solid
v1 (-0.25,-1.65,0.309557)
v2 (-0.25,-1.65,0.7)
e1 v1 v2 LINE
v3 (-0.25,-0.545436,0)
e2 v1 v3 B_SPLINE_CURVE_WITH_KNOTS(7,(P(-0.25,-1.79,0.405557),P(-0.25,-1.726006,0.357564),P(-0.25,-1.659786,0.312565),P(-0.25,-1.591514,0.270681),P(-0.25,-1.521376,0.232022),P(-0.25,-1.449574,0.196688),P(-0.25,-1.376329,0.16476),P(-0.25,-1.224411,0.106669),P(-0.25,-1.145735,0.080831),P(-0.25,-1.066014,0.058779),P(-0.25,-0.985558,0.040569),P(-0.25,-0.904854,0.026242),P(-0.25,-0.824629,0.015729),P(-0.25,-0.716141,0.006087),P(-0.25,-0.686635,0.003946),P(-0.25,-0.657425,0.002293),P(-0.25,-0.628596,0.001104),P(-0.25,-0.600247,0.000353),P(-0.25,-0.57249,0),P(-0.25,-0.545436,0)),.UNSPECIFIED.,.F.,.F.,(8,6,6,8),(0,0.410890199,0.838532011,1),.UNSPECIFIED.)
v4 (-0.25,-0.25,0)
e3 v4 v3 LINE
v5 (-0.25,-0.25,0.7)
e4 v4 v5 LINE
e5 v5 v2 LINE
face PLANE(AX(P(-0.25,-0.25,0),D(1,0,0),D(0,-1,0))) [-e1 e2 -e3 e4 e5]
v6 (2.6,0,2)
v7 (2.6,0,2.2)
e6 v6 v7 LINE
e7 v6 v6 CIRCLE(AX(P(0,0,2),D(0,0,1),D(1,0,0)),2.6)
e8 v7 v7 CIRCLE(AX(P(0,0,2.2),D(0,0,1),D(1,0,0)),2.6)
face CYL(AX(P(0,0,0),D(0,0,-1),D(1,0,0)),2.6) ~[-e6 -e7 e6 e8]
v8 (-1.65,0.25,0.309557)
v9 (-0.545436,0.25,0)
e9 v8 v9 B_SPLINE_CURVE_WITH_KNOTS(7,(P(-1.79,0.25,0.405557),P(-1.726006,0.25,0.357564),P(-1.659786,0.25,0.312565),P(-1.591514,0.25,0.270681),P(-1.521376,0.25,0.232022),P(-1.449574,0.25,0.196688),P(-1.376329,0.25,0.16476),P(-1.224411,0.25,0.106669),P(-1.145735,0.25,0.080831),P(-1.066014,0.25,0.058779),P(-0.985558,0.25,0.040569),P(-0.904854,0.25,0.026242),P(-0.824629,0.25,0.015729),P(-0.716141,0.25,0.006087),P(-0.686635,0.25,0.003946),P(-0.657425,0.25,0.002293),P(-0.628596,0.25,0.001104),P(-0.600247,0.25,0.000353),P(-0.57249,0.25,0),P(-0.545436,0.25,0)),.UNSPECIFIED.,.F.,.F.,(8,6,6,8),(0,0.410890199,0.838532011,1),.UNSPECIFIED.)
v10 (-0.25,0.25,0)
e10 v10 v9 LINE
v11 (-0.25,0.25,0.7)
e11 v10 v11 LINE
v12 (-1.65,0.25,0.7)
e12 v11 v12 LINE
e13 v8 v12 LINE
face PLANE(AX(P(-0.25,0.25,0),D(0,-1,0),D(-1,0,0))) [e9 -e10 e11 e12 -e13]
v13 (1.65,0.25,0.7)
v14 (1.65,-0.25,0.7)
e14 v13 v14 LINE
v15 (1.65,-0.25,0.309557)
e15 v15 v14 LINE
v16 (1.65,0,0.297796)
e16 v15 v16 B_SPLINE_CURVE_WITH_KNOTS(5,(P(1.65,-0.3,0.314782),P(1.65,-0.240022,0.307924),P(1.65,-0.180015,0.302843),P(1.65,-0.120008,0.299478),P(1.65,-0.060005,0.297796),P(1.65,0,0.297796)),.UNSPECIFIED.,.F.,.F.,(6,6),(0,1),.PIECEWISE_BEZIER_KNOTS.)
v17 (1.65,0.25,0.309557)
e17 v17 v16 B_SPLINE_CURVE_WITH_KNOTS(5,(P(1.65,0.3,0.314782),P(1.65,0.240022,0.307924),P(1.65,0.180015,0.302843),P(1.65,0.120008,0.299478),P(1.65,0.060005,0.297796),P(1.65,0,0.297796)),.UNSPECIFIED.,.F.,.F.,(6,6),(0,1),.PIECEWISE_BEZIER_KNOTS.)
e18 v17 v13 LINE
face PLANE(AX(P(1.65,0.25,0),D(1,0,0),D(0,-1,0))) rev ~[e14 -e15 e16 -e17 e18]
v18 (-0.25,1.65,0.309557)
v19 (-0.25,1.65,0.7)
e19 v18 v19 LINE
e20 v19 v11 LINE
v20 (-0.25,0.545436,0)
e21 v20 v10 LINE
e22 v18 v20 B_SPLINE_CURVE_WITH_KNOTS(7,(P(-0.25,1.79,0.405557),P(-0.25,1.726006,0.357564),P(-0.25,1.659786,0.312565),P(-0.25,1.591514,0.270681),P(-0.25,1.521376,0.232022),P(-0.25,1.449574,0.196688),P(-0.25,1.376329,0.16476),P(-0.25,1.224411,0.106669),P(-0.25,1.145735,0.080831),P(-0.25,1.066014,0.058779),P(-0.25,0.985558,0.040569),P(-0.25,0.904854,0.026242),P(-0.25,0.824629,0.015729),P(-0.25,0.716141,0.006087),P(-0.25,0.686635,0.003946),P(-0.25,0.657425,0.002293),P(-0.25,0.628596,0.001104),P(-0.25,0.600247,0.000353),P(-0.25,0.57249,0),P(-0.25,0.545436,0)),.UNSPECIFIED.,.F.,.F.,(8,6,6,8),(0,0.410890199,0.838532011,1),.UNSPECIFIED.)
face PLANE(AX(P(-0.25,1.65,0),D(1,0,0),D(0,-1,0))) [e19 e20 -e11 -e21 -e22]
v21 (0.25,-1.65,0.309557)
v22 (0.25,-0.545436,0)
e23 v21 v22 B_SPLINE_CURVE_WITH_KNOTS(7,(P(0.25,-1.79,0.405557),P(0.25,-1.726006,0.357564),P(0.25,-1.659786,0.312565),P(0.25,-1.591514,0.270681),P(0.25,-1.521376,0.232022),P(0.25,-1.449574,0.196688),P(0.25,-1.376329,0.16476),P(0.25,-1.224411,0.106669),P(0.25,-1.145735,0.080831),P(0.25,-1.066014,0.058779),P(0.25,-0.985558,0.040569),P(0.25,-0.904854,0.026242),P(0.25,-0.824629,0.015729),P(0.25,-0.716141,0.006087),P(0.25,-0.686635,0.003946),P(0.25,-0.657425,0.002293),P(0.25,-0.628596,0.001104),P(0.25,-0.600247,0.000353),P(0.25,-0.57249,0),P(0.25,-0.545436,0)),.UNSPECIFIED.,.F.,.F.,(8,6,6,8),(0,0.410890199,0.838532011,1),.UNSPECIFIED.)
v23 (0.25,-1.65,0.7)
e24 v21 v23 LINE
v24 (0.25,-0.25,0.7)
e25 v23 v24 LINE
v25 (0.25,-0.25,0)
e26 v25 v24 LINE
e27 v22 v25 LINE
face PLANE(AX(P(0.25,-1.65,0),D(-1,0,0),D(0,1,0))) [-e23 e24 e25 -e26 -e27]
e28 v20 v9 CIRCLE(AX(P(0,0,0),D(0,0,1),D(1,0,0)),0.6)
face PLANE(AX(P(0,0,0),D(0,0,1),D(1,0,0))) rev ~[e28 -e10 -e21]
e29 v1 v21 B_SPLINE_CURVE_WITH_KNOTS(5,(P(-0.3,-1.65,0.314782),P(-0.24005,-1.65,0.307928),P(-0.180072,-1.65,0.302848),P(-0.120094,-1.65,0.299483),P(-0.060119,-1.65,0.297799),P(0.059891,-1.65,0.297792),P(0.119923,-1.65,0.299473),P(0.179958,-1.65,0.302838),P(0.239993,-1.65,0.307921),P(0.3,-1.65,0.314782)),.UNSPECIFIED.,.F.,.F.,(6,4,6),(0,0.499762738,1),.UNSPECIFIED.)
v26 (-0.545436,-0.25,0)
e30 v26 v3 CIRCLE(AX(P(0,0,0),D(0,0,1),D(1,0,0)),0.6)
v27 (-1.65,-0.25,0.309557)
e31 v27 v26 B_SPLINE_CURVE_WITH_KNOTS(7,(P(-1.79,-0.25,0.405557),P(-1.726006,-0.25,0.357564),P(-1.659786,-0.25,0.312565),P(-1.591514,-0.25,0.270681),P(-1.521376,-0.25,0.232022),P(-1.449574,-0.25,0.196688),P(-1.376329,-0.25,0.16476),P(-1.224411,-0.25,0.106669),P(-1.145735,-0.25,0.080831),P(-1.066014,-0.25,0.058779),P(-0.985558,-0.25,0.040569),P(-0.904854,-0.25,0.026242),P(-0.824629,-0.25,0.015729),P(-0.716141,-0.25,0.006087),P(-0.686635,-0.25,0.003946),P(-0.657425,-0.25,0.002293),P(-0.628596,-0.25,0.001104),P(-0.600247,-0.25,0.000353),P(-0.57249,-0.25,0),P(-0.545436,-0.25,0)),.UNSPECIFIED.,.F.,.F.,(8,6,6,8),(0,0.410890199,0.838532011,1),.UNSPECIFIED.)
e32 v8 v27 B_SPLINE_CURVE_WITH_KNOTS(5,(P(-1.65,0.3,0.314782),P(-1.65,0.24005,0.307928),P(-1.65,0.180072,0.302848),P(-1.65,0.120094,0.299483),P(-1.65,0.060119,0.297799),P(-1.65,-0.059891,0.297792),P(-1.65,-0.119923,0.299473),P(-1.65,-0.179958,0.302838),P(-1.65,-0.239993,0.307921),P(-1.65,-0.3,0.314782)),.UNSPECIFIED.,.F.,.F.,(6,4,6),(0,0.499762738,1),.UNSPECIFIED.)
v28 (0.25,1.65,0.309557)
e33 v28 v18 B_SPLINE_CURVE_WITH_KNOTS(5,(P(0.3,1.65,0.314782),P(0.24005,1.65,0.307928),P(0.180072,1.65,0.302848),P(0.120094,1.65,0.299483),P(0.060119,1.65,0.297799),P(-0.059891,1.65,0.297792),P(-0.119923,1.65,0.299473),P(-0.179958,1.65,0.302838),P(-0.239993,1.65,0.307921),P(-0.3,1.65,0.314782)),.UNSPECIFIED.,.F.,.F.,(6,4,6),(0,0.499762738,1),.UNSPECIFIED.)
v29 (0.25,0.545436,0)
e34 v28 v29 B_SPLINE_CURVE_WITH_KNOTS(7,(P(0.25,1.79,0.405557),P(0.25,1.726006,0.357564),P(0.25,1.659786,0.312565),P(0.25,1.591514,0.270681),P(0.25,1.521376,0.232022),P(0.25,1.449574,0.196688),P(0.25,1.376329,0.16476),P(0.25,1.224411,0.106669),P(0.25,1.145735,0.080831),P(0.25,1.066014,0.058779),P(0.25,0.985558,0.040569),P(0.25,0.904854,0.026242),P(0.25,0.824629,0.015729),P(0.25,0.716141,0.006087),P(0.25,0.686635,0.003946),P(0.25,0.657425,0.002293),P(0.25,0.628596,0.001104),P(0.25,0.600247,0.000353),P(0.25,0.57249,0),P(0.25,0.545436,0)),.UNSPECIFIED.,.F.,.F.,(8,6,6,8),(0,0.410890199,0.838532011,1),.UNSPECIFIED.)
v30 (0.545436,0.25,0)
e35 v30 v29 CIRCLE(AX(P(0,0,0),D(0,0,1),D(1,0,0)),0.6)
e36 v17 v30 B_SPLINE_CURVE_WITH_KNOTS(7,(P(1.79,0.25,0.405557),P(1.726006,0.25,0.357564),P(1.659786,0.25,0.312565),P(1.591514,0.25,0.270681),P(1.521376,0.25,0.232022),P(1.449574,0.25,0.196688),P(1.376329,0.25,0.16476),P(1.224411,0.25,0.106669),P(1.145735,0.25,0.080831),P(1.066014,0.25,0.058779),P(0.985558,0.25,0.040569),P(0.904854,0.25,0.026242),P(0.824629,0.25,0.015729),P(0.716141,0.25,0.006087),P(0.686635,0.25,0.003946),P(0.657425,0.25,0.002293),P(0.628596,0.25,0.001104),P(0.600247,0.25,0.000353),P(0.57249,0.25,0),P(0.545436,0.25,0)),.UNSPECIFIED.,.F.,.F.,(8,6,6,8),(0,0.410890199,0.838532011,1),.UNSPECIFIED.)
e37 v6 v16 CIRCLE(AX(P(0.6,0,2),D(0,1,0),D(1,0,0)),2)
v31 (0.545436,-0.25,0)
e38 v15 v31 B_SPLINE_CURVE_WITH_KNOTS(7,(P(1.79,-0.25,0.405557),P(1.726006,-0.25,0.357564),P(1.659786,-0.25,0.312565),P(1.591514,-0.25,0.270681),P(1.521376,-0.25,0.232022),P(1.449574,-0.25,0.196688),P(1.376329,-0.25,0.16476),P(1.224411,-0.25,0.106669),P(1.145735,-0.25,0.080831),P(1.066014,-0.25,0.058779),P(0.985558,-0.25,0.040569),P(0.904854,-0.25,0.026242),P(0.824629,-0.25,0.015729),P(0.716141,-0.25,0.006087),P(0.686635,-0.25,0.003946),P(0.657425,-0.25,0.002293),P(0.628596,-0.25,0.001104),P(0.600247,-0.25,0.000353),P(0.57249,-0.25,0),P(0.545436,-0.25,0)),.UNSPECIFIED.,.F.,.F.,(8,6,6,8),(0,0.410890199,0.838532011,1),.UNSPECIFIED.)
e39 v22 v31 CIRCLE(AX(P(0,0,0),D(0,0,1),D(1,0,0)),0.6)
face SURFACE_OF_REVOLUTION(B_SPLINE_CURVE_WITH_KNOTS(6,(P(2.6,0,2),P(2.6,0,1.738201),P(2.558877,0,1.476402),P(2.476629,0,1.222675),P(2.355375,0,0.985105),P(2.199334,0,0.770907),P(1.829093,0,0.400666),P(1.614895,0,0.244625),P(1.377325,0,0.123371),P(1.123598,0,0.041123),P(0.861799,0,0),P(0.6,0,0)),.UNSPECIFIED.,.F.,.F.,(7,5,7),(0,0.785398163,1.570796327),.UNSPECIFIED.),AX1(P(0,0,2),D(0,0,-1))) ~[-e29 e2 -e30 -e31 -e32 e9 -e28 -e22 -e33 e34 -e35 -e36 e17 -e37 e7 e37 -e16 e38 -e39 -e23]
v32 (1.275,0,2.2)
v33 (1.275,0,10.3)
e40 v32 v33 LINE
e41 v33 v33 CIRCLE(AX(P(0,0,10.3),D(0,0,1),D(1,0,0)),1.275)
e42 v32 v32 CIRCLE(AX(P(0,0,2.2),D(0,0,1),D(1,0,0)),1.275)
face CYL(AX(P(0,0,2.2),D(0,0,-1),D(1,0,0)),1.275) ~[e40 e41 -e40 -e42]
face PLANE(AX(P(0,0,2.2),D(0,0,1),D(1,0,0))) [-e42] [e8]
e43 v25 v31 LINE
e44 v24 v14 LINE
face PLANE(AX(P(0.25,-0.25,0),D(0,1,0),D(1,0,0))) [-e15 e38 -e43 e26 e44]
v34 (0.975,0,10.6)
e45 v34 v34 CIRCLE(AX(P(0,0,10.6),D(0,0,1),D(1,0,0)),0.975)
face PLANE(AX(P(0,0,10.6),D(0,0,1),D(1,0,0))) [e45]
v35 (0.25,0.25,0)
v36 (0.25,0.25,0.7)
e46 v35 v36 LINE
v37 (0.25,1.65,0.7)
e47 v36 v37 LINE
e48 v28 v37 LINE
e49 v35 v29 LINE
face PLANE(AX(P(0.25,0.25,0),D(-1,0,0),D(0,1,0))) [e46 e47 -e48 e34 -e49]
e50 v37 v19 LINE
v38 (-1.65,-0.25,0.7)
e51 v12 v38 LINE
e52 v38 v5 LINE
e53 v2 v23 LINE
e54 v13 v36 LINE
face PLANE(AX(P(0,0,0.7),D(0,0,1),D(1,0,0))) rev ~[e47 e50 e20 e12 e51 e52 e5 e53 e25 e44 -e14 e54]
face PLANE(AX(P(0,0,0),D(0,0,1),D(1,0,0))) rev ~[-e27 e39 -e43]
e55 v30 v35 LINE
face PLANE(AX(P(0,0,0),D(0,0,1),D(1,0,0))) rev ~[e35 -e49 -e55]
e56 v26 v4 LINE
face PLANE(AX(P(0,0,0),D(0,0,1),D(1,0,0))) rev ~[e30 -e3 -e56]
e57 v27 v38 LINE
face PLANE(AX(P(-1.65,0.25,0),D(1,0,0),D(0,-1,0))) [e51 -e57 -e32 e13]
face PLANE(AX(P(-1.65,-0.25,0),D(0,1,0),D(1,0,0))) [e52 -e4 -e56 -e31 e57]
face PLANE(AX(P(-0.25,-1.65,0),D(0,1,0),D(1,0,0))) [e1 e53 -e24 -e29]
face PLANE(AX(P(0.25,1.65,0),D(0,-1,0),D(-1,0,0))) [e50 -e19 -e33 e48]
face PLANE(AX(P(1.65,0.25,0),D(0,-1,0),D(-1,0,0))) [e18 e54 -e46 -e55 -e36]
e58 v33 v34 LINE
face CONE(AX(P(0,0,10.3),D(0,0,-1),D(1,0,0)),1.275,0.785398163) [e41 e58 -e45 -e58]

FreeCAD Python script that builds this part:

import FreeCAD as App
import Part
import Sketcher
Q = App.Units.Quantity


def edges_at(feature, points):
    """Names of the edges that pass closest to the given points."""
    edges = feature.Shape.Edges
    near = lambda p: min(range(len(edges)), key=lambda i: edges[i].distToShape(Part.Vertex(*p))[0])
    return sorted({f"Edge{near(p) + 1}" for p in points})


def add_polygon(sketch, points):
    """Adds a closed chain of lines whose ends are joined by coincident constraints."""
    first, n = sketch.GeometryCount, len(points)
    for a, b in zip(points, points[1:] + points[:1]):
        sketch.addGeometry(Part.LineSegment(App.Vector(*a, 0), App.Vector(*b, 0)), False)
    for i in range(n):
        sketch.addConstraint(Sketcher.Constraint("Coincident", first + i, 2, first + (i + 1) % n, 1))

doc = App.newDocument("Part")
body = doc.addObject("PartDesign::Body", "Body")

sketch1 = body.newObject("Sketcher::SketchObject", "Sketch")
sketch1.AttachmentSupport = (doc.getObject("XY_Plane"), [""])
sketch1.MapMode = "FlatFace"
sketch1.addGeometry(Part.Circle(App.Vector(0, 0, 0), App.Vector(0, 0, 1), 2.6), False)
sketch1.addConstraint(Sketcher.Constraint("Coincident", 0, 3, -1, 1))
sketch1.addConstraint(Sketcher.Constraint("Diameter", 0, Q("5.2 mm")))
pad1 = body.newObject("PartDesign::Pad", "Pad")
pad1.Profile = sketch1
pad1.Length = 2.2

sketch2 = body.newObject("Sketcher::SketchObject", "Sketch001")
sketch2.AttachmentSupport = (doc.getObject("XY_Plane"), [""])
sketch2.MapMode = "FlatFace"
sketch2.AttachmentOffset = App.Placement(App.Vector(0, 0, 2.2), App.Rotation())
sketch2.addGeometry(Part.Circle(App.Vector(0, 0, 0), App.Vector(0, 0, 1), 1.3), False)
sketch2.addConstraint(Sketcher.Constraint("Coincident", 0, 3, -1, 1))
sketch2.addConstraint(Sketcher.Constraint("Diameter", 0, Q("2.55 mm")))
pad2 = body.newObject("PartDesign::Pad", "Pad001")
pad2.Profile = sketch2
pad2.Length = 8.4
doc.recompute()

fillet = body.newObject("PartDesign::Fillet", "Fillet")
fillet.Base = (pad2, edges_at(pad2, [(-2.6, 0, 0)]))
fillet.Radius = 2

sketch3 = body.newObject("Sketcher::SketchObject", "Sketch002")
sketch3.AttachmentSupport = (doc.getObject("XY_Plane"), [""])
sketch3.MapMode = "FlatFace"
add_polygon(sketch3, [(1.6, 0.2), (1.6, -0.2), (0.2, -0.2), (0.2, -1.6), (-0.2, -1.6), (-0.2, -0.2), (-1.6, -0.2), (-1.6, 0.2), (-0.2, 0.2), (-0.2, 1.6), (0.2, 1.6), (0.2, 0.2)])
sketch3.addConstraint(Sketcher.Constraint("Vertical", 0))
sketch3.addConstraint(Sketcher.Constraint("Horizontal", 1))
sketch3.addConstraint(Sketcher.Constraint("Vertical", 2))
sketch3.addConstraint(Sketcher.Constraint("Horizontal", 3))
sketch3.addConstraint(Sketcher.Constraint("Vertical", 4))
sketch3.addConstraint(Sketcher.Constraint("Horizontal", 5))
sketch3.addConstraint(Sketcher.Constraint("Vertical", 6))
sketch3.addConstraint(Sketcher.Constraint("Horizontal", 7))
sketch3.addConstraint(Sketcher.Constraint("Vertical", 8))
sketch3.addConstraint(Sketcher.Constraint("Horizontal", 9))
sketch3.addConstraint(Sketcher.Constraint("Vertical", 10))
sketch3.addConstraint(Sketcher.Constraint("Horizontal", 11))
sketch3.addConstraint(Sketcher.Constraint("Symmetric", 0, 2, 6, 2, -1, 1))
sketch3.addConstraint(Sketcher.Constraint("Symmetric", 2, 2, 8, 2, -1, 1))
sketch3.addConstraint(Sketcher.Constraint("Symmetric", 4, 2, 10, 2, -1, 1))
sketch3.addConstraint(Sketcher.Constraint("Symmetric", 1, 2, 4, 2, -2))
sketch3.addConstraint(Sketcher.Constraint("Equal", 9, 0))
sketch3.addConstraint(Sketcher.Constraint("Equal", 11, 2))
sketch3.addConstraint(Sketcher.Constraint("DistanceX", 1, 2, 1, 1, Q("1.4 mm")))
sketch3.addConstraint(Sketcher.Constraint("DistanceX", 3, 2, 3, 1, Q("0.5 mm")))
pocket1 = body.newObject("PartDesign::Pocket", "Pocket")
pocket1.Profile = sketch3
pocket1.Length = 0.7
pocket1.Reversed = True
doc.recompute()

chamfer = body.newObject("PartDesign::Chamfer", "Chamfer")
chamfer.Base = (pocket1, edges_at(pocket1, [(-1.275, 0, 10.6)]))
chamfer.Size = 0.3

doc.recompute()
